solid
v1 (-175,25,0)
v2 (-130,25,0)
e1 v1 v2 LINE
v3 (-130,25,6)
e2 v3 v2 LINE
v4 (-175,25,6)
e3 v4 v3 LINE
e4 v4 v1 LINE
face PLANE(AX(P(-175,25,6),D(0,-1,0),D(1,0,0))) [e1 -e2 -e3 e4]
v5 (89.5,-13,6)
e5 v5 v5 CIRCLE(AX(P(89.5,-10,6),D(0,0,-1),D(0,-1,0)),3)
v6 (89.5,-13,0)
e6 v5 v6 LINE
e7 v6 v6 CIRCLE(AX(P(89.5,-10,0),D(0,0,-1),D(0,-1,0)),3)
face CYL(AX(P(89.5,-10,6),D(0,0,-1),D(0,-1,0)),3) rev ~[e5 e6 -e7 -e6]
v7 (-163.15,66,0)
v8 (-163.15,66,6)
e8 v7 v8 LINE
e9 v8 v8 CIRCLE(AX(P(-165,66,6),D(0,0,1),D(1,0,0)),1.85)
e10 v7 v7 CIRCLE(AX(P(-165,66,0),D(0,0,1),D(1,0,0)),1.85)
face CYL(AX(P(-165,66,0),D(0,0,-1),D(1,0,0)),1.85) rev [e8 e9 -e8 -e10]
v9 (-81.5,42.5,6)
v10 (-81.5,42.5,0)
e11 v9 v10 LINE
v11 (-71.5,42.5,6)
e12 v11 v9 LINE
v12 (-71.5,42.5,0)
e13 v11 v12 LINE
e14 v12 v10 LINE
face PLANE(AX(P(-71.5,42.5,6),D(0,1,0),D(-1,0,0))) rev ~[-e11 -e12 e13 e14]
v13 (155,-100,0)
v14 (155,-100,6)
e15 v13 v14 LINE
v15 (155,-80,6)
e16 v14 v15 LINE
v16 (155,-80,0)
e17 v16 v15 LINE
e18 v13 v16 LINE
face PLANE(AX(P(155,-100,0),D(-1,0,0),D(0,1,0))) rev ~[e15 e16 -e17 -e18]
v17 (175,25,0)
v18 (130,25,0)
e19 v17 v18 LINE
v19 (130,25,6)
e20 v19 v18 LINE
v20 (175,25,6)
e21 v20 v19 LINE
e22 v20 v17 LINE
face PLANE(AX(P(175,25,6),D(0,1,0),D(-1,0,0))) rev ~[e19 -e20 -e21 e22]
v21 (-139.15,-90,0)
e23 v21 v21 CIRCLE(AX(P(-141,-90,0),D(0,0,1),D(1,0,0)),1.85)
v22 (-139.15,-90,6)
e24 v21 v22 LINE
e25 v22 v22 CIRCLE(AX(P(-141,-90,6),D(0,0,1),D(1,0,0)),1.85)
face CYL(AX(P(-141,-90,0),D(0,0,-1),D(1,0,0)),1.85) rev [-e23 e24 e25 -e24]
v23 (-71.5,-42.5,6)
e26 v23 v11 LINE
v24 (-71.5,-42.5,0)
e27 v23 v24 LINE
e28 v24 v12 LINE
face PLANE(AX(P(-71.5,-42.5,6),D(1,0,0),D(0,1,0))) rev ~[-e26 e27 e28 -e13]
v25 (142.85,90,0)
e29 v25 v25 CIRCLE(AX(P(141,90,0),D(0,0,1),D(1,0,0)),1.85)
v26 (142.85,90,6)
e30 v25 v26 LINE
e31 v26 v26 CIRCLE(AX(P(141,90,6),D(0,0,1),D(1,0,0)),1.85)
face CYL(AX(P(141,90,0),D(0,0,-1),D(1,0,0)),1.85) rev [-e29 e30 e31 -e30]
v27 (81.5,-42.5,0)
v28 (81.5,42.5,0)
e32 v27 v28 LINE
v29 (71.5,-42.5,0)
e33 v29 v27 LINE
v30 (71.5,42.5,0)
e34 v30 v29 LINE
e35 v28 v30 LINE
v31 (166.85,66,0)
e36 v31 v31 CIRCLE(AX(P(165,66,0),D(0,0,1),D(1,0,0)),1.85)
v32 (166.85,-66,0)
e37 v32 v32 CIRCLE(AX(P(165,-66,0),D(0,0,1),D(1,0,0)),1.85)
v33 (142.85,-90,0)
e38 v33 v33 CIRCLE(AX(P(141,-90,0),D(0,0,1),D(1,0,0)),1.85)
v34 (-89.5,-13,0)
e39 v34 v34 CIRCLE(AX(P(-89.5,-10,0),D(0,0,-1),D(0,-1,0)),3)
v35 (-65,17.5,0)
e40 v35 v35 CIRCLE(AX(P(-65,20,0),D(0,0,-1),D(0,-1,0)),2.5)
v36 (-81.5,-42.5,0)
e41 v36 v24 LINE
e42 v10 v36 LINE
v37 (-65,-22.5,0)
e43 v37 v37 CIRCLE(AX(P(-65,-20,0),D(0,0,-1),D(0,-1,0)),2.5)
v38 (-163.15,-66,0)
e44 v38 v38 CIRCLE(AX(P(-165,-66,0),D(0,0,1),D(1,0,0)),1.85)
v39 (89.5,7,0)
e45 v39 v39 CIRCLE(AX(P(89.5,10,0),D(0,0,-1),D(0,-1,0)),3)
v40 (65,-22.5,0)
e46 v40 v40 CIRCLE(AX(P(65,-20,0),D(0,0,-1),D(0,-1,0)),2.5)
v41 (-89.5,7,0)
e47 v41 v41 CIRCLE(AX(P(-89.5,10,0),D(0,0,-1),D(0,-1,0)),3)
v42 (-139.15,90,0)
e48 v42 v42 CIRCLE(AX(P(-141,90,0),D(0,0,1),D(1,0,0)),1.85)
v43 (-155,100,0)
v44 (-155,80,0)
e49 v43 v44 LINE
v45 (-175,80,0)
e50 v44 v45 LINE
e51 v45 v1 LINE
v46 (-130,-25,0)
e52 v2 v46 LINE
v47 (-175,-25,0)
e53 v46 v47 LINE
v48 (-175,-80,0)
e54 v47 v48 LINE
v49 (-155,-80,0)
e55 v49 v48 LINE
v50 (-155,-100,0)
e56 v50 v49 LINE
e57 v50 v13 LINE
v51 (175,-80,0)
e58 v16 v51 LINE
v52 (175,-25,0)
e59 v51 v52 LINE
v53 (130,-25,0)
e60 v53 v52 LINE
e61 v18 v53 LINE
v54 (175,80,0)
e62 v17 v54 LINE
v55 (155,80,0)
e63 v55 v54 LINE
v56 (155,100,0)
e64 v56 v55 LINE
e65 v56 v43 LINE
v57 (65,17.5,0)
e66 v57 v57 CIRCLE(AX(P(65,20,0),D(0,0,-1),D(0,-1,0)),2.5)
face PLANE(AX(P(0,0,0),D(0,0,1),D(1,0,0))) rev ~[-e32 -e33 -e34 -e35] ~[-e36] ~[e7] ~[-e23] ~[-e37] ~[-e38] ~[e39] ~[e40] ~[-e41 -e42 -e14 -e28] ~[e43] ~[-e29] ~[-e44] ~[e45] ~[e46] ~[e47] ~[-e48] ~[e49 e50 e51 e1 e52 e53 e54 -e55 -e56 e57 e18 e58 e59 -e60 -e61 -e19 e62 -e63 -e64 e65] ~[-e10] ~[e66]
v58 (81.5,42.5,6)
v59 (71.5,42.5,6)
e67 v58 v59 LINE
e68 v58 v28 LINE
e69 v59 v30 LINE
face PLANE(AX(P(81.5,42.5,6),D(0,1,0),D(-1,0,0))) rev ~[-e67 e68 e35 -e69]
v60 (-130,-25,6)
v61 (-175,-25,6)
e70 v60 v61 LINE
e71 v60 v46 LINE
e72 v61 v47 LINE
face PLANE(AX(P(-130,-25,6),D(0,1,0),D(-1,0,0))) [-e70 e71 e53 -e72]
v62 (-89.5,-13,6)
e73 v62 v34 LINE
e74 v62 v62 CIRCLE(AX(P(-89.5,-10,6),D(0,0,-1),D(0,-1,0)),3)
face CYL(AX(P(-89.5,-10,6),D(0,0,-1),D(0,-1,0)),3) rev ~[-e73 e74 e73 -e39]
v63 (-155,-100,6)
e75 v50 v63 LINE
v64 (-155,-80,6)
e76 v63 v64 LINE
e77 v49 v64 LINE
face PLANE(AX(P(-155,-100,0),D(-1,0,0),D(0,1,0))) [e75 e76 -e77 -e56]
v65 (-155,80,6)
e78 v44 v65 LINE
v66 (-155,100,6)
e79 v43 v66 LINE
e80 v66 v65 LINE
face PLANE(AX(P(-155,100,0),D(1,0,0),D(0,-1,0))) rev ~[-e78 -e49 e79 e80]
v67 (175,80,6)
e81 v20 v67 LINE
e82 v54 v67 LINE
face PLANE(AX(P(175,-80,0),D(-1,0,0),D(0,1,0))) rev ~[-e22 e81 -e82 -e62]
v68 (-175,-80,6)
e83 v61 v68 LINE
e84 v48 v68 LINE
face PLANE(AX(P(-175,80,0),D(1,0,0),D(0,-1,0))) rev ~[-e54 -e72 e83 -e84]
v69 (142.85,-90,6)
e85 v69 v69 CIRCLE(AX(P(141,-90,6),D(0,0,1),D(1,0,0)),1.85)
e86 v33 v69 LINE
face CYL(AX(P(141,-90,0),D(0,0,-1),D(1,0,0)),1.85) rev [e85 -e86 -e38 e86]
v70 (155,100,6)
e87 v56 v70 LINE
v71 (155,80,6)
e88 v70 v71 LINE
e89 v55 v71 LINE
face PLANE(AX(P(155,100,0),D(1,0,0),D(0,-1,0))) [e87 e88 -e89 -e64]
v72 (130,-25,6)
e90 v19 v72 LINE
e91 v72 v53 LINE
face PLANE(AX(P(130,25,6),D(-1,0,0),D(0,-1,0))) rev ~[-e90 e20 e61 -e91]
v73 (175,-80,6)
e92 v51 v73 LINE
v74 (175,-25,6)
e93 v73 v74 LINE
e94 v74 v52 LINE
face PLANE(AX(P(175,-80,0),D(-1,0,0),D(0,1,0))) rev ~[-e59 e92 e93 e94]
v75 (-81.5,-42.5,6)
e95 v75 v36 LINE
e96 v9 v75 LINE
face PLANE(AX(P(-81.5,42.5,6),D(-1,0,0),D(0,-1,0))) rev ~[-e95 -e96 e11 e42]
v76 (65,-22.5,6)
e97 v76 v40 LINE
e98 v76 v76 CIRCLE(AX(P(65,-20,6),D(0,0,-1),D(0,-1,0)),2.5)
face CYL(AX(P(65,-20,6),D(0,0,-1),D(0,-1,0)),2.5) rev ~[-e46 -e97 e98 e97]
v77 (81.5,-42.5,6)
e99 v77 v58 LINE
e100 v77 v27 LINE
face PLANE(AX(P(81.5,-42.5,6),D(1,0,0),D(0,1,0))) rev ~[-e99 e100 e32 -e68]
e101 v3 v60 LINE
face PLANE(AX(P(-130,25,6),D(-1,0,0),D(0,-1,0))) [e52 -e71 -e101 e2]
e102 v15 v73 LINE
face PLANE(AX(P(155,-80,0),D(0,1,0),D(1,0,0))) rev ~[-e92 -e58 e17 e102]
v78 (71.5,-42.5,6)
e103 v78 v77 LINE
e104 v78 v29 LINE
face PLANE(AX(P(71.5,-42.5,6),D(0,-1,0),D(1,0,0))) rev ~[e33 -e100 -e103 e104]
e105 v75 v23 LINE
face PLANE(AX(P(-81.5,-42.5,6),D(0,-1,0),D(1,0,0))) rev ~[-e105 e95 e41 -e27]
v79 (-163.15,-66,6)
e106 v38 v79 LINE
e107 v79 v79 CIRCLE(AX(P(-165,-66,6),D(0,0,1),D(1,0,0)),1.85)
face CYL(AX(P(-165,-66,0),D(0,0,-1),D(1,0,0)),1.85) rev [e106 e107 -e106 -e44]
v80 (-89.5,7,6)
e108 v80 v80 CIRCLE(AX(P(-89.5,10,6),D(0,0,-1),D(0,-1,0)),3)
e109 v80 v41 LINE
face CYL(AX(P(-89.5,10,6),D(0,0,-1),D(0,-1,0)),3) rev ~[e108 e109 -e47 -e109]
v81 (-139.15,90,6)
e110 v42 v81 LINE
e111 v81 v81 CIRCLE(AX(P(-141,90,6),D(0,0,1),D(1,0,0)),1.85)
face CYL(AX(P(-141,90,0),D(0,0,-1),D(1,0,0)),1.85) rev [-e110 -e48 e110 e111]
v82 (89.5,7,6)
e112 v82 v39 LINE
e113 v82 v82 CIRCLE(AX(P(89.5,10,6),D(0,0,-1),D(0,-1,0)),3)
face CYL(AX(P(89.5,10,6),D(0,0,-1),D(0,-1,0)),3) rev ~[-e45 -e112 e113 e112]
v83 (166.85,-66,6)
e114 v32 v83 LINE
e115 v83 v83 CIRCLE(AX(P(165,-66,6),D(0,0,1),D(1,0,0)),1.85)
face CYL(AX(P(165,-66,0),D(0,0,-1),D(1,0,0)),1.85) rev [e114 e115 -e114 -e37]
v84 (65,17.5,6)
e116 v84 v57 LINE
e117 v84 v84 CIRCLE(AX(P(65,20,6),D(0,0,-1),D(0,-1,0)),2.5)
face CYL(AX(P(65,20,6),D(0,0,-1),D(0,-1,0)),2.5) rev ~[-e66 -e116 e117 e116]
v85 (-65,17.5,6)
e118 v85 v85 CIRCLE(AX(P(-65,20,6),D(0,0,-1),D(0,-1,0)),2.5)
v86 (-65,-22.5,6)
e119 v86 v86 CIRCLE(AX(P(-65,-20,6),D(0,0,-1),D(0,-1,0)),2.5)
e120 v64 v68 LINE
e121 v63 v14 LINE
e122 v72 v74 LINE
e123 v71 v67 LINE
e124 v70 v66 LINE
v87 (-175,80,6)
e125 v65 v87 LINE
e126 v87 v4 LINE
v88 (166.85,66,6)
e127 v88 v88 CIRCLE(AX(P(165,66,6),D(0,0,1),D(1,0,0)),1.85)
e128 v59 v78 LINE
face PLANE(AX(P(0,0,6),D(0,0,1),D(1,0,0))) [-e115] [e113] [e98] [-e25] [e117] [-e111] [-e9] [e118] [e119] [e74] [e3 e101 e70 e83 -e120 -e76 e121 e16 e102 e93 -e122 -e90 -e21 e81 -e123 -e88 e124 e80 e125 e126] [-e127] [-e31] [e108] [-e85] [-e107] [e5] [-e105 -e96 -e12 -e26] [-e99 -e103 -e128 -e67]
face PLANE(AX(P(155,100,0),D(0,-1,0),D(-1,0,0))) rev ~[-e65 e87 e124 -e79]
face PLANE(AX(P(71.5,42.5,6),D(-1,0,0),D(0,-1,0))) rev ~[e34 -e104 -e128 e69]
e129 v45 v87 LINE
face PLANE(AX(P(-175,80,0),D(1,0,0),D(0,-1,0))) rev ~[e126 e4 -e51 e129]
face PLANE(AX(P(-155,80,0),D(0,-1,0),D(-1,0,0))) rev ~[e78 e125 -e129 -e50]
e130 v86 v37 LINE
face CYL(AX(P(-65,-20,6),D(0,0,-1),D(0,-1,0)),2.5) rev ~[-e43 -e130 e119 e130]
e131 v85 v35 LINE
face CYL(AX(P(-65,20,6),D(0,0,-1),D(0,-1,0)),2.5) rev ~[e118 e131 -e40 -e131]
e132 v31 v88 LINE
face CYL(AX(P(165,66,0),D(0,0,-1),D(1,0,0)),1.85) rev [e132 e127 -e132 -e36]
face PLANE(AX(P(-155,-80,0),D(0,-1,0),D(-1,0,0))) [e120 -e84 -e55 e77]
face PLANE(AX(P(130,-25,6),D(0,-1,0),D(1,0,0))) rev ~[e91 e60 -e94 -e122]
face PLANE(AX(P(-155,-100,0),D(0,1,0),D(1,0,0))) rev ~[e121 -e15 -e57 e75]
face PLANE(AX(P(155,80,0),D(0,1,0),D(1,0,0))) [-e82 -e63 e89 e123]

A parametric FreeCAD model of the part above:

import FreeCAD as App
import Part
import Sketcher

V = App.Vector

doc = App.newDocument("Part")
body = doc.addObject("PartDesign::Body", "Body")

# Sketch on XY plane
sketch1 = doc.addObject("Sketcher::SketchObject", "Sketch")
body.addObject(sketch1)
sketch1.AttachmentSupport = (doc.XY_Plane, [""])
sketch1.MapMode = "FlatFace"
sketch1.addGeometry([
    Part.LineSegment(V(-155, -80, 0), V(-155, -100, 0)),  # 0
    Part.LineSegment(V(-155, -100, 0), V(155, -100, 0)),  # 1
    Part.LineSegment(V(155, -100, 0), V(155, -80, 0)),  # 2
    Part.LineSegment(V(155, -80, 0), V(175, -80, 0)),  # 3
    Part.LineSegment(V(175, -80, 0), V(175, 80, 0)),  # 4
    Part.LineSegment(V(175, 80, 0), V(155, 80, 0)),  # 5
    Part.LineSegment(V(155, 80, 0), V(155, 100, 0)),  # 6
    Part.LineSegment(V(155, 100, 0), V(-155, 100, 0)),  # 7
    Part.LineSegment(V(-155, 100, 0), V(-155, 80, 0)),  # 8
    Part.LineSegment(V(-155, 80, 0), V(-175, 80, 0)),  # 9
    Part.LineSegment(V(-175, 80, 0), V(-175, -80, 0)),  # 10
    Part.LineSegment(V(-175, -80, 0), V(-155, -80, 0)),  # 11
    Part.Circle(V(-141, -90, 0), V(0, 0, 1), 1.85),  # 12
    Part.Circle(V(-165, -66, 0), V(0, 0, 1), 1.85),  # 13
    Part.Circle(V(141, -90, 0), V(0, 0, 1), 1.85),  # 14
    Part.Circle(V(165, -66, 0), V(0, 0, 1), 1.85),  # 15
    Part.Circle(V(-165, 66, 0), V(0, 0, 1), 1.85),  # 16
    Part.Circle(V(-141, 90, 0), V(0, 0, 1), 1.85),  # 17
    Part.Circle(V(165, 66, 0), V(0, 0, 1), 1.85),  # 18
    Part.Circle(V(141, 90, 0), V(0, 0, 1), 1.85),  # 19
], False)
sketch1.addConstraint([
    Sketcher.Constraint("Coincident", 0, 2, 1, 1),
    Sketcher.Constraint("Coincident", 1, 2, 2, 1),
    Sketcher.Constraint("Coincident", 2, 2, 3, 1),
    Sketcher.Constraint("Coincident", 3, 2, 4, 1),
    Sketcher.Constraint("Coincident", 4, 2, 5, 1),
    Sketcher.Constraint("Coincident", 5, 2, 6, 1),
    Sketcher.Constraint("Coincident", 6, 2, 7, 1),
    Sketcher.Constraint("Coincident", 7, 2, 8, 1),
    Sketcher.Constraint("Coincident", 8, 2, 9, 1),
    Sketcher.Constraint("Coincident", 9, 2, 10, 1),
    Sketcher.Constraint("Coincident", 10, 2, 11, 1),
    Sketcher.Constraint("Coincident", 11, 2, 0, 1),
    Sketcher.Constraint("Vertical", 0),
    Sketcher.Constraint("Horizontal", 1),
    Sketcher.Constraint("Vertical", 2),
    Sketcher.Constraint("Horizontal", 3),
    Sketcher.Constraint("Vertical", 4),
    Sketcher.Constraint("Horizontal", 5),
    Sketcher.Constraint("Vertical", 6),
    Sketcher.Constraint("Horizontal", 7),
    Sketcher.Constraint("Vertical", 8),
    Sketcher.Constraint("Horizontal", 9),
    Sketcher.Constraint("Vertical", 10),
    Sketcher.Constraint("Horizontal", 11),
    Sketcher.Constraint("Equal", 12, 13),
    Sketcher.Constraint("Equal", 13, 14),
    Sketcher.Constraint("Equal", 14, 15),
    Sketcher.Constraint("Equal", 15, 16),
    Sketcher.Constraint("Equal", 16, 17),
    Sketcher.Constraint("Equal", 17, 18),
    Sketcher.Constraint("Equal", 18, 19),
    Sketcher.Constraint("Symmetric", 15, 3, 16, 3, -1, 1),
    Sketcher.Constraint("Symmetric", 14, 3, 17, 3, -1, 1),
    Sketcher.Constraint("Symmetric", 13, 3, 18, 3, -1, 1),
    Sketcher.Constraint("Symmetric", 12, 3, 19, 3, -1, 1),
    Sketcher.Constraint("Symmetric", 0, 2, 6, 2, -1, 1),
    Sketcher.Constraint("Symmetric", 2, 2, 8, 2, -1, 1),
    Sketcher.Constraint("Symmetric", 4, 2, 10, 2, -1, 1),
    Sketcher.Constraint("Symmetric", 12, 3, 14, 3, -2),
    Sketcher.Constraint("Symmetric", 13, 3, 15, 3, -2),
    Sketcher.Constraint("Symmetric", 5, 2, 8, 2, -2),
    Sketcher.Constraint("Equal", 11, 0),
    Sketcher.Constraint("Diameter", 12, 3.7),
    Sketcher.Constraint("DistanceX", 3, 1, 3, 2, 20.0),
    Sketcher.Constraint("DistanceX", 0, 2, 12, 3, 14.0),
    Sketcher.Constraint("DistanceY", 0, 2, 12, 3, 10.0),
    Sketcher.Constraint("DistanceX", 13, 3, 0, 2, 10.0),
    Sketcher.Constraint("DistanceY", 2, 2, 15, 3, 14.0),
    Sketcher.Constraint("DistanceY", 0, 2, 7, 2, 200.0),
    Sketcher.Constraint("DistanceX", 1, 1, 1, 2, 310.0),
])
pad1 = doc.addObject("PartDesign::Pad", "Pad")
body.addObject(pad1)
pad1.Profile = sketch1
pad1.Length = 6

# Sketch on XY plane
sketch2 = doc.addObject("Sketcher::SketchObject", "Sketch001")
body.addObject(sketch2)
sketch2.AttachmentSupport = (doc.XY_Plane, [""])
sketch2.MapMode = "FlatFace"
sketch2.AttachmentOffset = App.Placement(V(0, 0, 6), App.Rotation())
sketch2.addGeometry([
    Part.LineSegment(V(130, -25, 0), V(175, -25, 0)),  # 0
    Part.LineSegment(V(175, -25, 0), V(175, 25, 0)),  # 1
    Part.LineSegment(V(175, 25, 0), V(130, 25, 0)),  # 2
    Part.LineSegment(V(130, 25, 0), V(130, -25, 0)),  # 3
    Part.LineSegment(V(-175, 25, 0), V(-175, -25, 0)),  # 4
    Part.LineSegment(V(-175, -25, 0), V(-130, -25, 0)),  # 5
    Part.LineSegment(V(-130, -25, 0), V(-130, 25, 0)),  # 6
    Part.LineSegment(V(-130, 25, 0), V(-175, 25, 0)),  # 7
], False)
sketch2.addConstraint([
    Sketcher.Constraint("Coincident", 0, 2, 1, 1),
    Sketcher.Constraint("Coincident", 1, 2, 2, 1),
    Sketcher.Constraint("Coincident", 2, 2, 3, 1),
    Sketcher.Constraint("Coincident", 3, 2, 0, 1),
    Sketcher.Constraint("Coincident", 4, 2, 5, 1),
    Sketcher.Constraint("Coincident", 5, 2, 6, 1),
    Sketcher.Constraint("Coincident", 6, 2, 7, 1),
    Sketcher.Constraint("Coincident", 7, 2, 4, 1),
    Sketcher.Constraint("Horizontal", 0),
    Sketcher.Constraint("Vertical", 1),
    Sketcher.Constraint("Horizontal", 2),
    Sketcher.Constraint("Vertical", 3),
    Sketcher.Constraint("Vertical", 4),
    Sketcher.Constraint("Horizontal", 5),
    Sketcher.Constraint("Vertical", 6),
    Sketcher.Constraint("Horizontal", 7),
    Sketcher.Constraint("Symmetric", 1, 2, 4, 2, -1, 1),
    Sketcher.Constraint("Symmetric", 3, 2, 6, 2, -1, 1),
    Sketcher.Constraint("Horizontal", 3, 2, 4, 2),
    Sketcher.Constraint("DistanceX", 0, 1, 0, 2, 45.0),
    Sketcher.Constraint("DistanceY", 1, 1, 1, 2, 50.0),
    Sketcher.Constraint("DistanceX", -1, 1, 0, 2, 175.0),
])
pocket1 = doc.addObject("PartDesign::Pocket", "Pocket")
body.addObject(pocket1)
pocket1.Profile = sketch2
pocket1.Length = 6

# Sketch on XY plane
sketch3 = doc.addObject("Sketcher::SketchObject", "Sketch002")
body.addObject(sketch3)
sketch3.AttachmentSupport = (doc.XY_Plane, [""])
sketch3.MapMode = "FlatFace"
sketch3.AttachmentOffset = App.Placement(V(0, 0, 6), App.Rotation())
sketch3.addGeometry([
    Part.Circle(V(-89.5, 10, 0), V(0, 0, 1), 3),
    Part.Circle(V(-89.5, -10, 0), V(0, 0, 1), 3),
    Part.Circle(V(89.5, 10, 0), V(0, 0, 1), 3),
    Part.Circle(V(89.5, -10, 0), V(0, 0, 1), 3),
], False)
sketch3.addConstraint([
    Sketcher.Constraint("Equal", 0, 1),
    Sketcher.Constraint("Equal", 1, 2),
    Sketcher.Constraint("Equal", 2, 3),
    Sketcher.Constraint("Symmetric", 1, 3, 2, 3, -1, 1),
    Sketcher.Constraint("Symmetric", 0, 3, 3, 3, -1, 1),
    Sketcher.Constraint("Symmetric", 0, 3, 2, 3, -2),
    Sketcher.Constraint("Diameter", 0, 6.0),
    Sketcher.Constraint("DistanceY", -1, 1, 0, 3, 10.0),
    Sketcher.Constraint("DistanceX", 0, 3, 2, 3, 179.0),
])
doc.recompute()
hole = doc.addObject("PartDesign::Hole", "Hole")
body.addObject(hole)
hole.Profile = sketch3
hole.ThreadType = "None"
hole.Diameter = 6
hole.DepthType = "Dimension"
hole.Depth = 8
hole.DrillPoint = "Angled"
hole.DrillPointAngle = 118

# Sketch on XY plane
sketch4 = doc.addObject("Sketcher::SketchObject", "Sketch003")
body.addObject(sketch4)
sketch4.AttachmentSupport = (doc.XY_Plane, [""])
sketch4.MapMode = "FlatFace"
sketch4.AttachmentOffset = App.Placement(V(0, 0, 6), App.Rotation())
sketch4.addGeometry([
    Part.LineSegment(V(-81.5, 42.5, 0), V(-81.5, -42.5, 0)),  # 0
    Part.LineSegment(V(-81.5, -42.5, 0), V(-71.5, -42.5, 0)),  # 1
    Part.LineSegment(V(-71.5, -42.5, 0), V(-71.5, 42.5, 0)),  # 2
    Part.LineSegment(V(-71.5, 42.5, 0), V(-81.5, 42.5, 0)),  # 3
    Part.LineSegment(V(71.5, 42.5, 0), V(71.5, -42.5, 0)),  # 4
    Part.LineSegment(V(71.5, -42.5, 0), V(81.5, -42.5, 0)),  # 5
    Part.LineSegment(V(81.5, -42.5, 0), V(81.5, 42.5, 0)),  # 6
    Part.LineSegment(V(81.5, 42.5, 0), V(71.5, 42.5, 0)),  # 7
], False)
sketch4.addConstraint([
    Sketcher.Constraint("Coincident", 0, 2, 1, 1),
    Sketcher.Constraint("Coincident", 1, 2, 2, 1),
    Sketcher.Constraint("Coincident", 2, 2, 3, 1),
    Sketcher.Constraint("Coincident", 3, 2, 0, 1),
    Sketcher.Constraint("Coincident", 4, 2, 5, 1),
    Sketcher.Constraint("Coincident", 5, 2, 6, 1),
    Sketcher.Constraint("Coincident", 6, 2, 7, 1),
    Sketcher.Constraint("Coincident", 7, 2, 4, 1),
    Sketcher.Constraint("Vertical", 0),
    Sketcher.Constraint("Horizontal", 1),
    Sketcher.Constraint("Vertical", 2),
    Sketcher.Constraint("Horizontal", 3),
    Sketcher.Constraint("Vertical", 4),
    Sketcher.Constraint("Horizontal", 5),
    Sketcher.Constraint("Vertical", 6),
    Sketcher.Constraint("Horizontal", 7),
    Sketcher.Constraint("Symmetric", 2, 2, 4, 2, -1, 1),
    Sketcher.Constraint("Symmetric", 0, 2, 6, 2, -1, 1),
    Sketcher.Constraint("Horizontal", 1, 2, 4, 2),
    Sketcher.Constraint("DistanceX", 1, 1, 1, 2, 10.0),
    Sketcher.Constraint("DistanceY", 0, 2, 0, 1, 85.0),
    Sketcher.Constraint("DistanceX", 1, 2, 4, 2, 143.0),
])
pocket2 = doc.addObject("PartDesign::Pocket", "Pocket001")
body.addObject(pocket2)
pocket2.Profile = sketch4
pocket2.Length = 6

# Sketch on XY plane
sketch5 = doc.addObject("Sketcher::SketchObject", "Sketch004")
body.addObject(sketch5)
sketch5.AttachmentSupport = (doc.XY_Plane, [""])
sketch5.MapMode = "FlatFace"
sketch5.AttachmentOffset = App.Placement(V(0, 0, 6), App.Rotation())
sketch5.addGeometry([
    Part.Circle(V(-65, 20, 0), V(0, 0, 1), 2.5),
    Part.Circle(V(-65, -20, 0), V(0, 0, 1), 2.5),
    Part.Circle(V(65, 20, 0), V(0, 0, 1), 2.5),
    Part.Circle(V(65, -20, 0), V(0, 0, 1), 2.5),
], False)
sketch5.addConstraint([
    Sketcher.Constraint("Equal", 0, 1),
    Sketcher.Constraint("Equal", 1, 2),
    Sketcher.Constraint("Equal", 2, 3),
    Sketcher.Constraint("Symmetric", 1, 3, 2, 3, -1, 1),
    Sketcher.Constraint("Symmetric", 0, 3, 3, 3, -1, 1),
    Sketcher.Constraint("Symmetric", 0, 3, 2, 3, -2),
    Sketcher.Constraint("Diameter", 0, 5.0),
    Sketcher.Constraint("DistanceX", 0, 3, -1, 1, 65.0),
    Sketcher.Constraint("DistanceY", -1, 1, 0, 3, 20.0),
])
doc.recompute()
hole2 = doc.addObject("PartDesign::Hole", "Hole001")
body.addObject(hole2)
hole2.Profile = sketch5
hole2.ThreadType = "None"
hole2.Diameter = 5
hole2.DepthType = "Dimension"
hole2.Depth = 8
hole2.DrillPoint = "Angled"
hole2.DrillPointAngle = 118

doc.recompute()
